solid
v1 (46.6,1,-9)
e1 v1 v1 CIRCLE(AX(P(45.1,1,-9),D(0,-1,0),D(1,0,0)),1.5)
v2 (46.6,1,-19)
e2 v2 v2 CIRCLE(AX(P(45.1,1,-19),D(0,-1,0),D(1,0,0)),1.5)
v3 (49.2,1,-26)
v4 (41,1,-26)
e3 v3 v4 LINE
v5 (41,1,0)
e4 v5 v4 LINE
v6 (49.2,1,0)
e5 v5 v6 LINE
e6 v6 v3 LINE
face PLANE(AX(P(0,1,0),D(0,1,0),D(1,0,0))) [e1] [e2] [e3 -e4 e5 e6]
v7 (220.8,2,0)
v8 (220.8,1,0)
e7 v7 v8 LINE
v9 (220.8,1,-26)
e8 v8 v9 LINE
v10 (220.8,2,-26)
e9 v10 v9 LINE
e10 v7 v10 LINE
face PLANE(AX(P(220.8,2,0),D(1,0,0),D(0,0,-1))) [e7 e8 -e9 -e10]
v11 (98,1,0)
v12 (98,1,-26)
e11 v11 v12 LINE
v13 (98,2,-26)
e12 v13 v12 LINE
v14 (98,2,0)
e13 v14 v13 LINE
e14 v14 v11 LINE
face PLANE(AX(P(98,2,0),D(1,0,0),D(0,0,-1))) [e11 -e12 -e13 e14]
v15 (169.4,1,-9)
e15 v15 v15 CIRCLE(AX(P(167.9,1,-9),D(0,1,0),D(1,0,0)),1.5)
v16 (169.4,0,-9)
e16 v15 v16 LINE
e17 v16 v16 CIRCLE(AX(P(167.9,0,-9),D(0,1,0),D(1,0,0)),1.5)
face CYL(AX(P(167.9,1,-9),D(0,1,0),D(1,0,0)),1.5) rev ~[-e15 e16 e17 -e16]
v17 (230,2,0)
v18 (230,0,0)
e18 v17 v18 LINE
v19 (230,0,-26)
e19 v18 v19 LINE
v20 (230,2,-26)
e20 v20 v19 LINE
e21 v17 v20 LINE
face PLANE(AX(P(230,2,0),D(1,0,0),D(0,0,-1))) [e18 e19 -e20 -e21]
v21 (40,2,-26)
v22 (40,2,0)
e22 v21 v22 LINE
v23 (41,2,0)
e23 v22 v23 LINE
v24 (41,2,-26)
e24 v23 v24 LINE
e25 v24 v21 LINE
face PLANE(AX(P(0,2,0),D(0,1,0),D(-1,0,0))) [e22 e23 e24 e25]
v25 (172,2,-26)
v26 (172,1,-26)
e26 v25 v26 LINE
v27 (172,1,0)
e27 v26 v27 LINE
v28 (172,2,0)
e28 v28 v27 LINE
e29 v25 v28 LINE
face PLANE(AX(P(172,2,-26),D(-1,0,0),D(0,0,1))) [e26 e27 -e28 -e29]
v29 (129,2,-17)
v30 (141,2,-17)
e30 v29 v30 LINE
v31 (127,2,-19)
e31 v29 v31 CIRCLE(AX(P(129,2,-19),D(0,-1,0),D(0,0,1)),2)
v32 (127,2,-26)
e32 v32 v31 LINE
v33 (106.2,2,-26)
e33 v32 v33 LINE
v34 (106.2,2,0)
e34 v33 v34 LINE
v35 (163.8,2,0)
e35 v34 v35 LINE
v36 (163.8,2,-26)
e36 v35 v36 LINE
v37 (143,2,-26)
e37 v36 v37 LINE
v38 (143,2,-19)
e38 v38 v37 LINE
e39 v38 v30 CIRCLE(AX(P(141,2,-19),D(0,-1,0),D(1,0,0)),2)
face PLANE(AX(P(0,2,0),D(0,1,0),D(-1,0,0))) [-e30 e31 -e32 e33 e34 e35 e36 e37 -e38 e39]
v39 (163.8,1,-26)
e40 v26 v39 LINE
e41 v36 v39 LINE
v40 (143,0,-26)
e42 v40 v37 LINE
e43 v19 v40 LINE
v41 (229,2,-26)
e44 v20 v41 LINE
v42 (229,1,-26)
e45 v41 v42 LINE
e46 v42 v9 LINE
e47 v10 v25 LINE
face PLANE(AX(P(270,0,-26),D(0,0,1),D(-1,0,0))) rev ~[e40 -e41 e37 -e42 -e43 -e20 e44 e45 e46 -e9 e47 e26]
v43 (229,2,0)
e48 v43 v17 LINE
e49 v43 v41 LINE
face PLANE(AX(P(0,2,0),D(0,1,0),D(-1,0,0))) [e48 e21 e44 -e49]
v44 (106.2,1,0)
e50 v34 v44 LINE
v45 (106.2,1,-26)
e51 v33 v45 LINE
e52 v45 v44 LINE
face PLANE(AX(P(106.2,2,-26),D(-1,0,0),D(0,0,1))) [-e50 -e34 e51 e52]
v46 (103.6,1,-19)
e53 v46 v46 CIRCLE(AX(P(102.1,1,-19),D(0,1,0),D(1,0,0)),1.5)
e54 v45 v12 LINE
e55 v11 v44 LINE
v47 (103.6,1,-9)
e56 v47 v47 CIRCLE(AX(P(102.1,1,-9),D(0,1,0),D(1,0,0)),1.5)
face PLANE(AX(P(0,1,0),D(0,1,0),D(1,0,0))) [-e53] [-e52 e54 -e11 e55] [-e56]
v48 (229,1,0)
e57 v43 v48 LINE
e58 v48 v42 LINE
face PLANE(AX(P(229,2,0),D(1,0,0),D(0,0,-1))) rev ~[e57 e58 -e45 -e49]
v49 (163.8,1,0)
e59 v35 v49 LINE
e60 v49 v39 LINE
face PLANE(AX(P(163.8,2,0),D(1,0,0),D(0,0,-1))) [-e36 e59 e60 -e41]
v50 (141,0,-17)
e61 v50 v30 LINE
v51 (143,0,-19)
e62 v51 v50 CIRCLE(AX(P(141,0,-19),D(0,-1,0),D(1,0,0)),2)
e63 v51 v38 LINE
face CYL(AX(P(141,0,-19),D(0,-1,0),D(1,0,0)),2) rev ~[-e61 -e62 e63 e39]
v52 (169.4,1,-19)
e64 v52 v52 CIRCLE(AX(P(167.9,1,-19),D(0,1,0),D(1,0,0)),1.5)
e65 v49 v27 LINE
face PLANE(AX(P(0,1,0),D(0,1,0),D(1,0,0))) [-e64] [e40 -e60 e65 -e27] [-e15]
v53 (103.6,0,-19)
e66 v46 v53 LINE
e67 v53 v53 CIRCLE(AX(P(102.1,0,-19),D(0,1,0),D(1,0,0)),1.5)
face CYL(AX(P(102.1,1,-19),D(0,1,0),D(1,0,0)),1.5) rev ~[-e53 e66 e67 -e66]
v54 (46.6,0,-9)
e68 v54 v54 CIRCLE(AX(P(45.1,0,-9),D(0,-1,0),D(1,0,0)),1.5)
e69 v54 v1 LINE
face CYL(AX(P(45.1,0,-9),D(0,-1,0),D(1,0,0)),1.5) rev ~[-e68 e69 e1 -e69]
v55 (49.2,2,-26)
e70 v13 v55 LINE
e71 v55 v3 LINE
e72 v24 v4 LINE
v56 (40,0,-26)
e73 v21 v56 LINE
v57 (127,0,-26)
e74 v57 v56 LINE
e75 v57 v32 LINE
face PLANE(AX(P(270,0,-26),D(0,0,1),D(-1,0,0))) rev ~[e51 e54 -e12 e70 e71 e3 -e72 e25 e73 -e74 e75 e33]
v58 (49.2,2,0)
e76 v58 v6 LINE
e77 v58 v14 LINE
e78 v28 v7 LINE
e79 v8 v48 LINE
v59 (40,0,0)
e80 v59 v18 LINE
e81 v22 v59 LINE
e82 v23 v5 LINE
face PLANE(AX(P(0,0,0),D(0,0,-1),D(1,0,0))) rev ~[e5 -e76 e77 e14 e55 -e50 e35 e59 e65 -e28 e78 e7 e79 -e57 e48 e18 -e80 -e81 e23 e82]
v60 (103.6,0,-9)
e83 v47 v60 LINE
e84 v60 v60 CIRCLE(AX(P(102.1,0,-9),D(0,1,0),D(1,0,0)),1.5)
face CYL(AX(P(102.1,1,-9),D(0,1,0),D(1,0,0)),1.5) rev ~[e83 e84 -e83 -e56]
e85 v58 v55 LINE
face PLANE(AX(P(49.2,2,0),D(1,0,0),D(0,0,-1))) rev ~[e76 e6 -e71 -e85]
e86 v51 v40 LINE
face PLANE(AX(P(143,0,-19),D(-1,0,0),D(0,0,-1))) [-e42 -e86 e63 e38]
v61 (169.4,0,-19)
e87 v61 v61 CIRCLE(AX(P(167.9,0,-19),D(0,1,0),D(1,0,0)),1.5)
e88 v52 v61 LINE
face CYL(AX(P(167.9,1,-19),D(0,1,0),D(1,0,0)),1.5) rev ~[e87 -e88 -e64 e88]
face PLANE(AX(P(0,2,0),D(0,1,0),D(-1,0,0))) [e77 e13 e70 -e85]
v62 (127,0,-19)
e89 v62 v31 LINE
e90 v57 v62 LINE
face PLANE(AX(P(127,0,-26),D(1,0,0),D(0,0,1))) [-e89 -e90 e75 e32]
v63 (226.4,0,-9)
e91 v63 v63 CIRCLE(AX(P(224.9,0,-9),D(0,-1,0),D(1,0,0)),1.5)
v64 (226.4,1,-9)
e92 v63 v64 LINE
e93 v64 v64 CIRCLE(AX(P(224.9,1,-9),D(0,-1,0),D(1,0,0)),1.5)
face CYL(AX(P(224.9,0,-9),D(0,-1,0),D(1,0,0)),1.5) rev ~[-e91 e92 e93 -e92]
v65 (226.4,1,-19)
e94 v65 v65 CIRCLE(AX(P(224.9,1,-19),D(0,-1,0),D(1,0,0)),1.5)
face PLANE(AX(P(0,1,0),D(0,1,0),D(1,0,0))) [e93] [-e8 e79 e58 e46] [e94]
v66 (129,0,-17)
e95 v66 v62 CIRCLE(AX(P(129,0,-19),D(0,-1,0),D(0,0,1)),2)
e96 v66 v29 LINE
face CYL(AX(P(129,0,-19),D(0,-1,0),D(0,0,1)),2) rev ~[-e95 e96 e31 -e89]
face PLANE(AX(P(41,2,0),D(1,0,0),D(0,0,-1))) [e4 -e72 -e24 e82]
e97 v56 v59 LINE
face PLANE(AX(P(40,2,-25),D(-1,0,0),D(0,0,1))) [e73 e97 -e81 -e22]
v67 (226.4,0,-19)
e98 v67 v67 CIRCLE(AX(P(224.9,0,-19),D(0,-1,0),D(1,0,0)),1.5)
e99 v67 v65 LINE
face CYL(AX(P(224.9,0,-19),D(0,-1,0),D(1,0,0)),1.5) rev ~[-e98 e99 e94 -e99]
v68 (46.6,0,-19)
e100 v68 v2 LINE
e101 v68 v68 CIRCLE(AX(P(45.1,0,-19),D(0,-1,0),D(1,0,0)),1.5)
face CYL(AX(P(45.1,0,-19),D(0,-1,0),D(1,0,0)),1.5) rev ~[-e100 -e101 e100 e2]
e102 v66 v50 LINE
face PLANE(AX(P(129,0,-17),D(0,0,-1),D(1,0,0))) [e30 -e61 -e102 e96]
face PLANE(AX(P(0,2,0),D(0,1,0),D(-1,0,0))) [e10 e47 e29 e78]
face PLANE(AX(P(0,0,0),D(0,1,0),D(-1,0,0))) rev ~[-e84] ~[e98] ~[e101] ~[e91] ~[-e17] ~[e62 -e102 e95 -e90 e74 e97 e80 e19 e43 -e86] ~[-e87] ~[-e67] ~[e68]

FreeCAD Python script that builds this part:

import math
import FreeCAD as App
import Part
import Sketcher
Q = App.Units.Quantity


def add_polygon(sketch, points):
    """Adds a closed chain of lines whose ends are joined by coincident constraints."""
    first, n = sketch.GeometryCount, len(points)
    for a, b in zip(points, points[1:] + points[:1]):
        sketch.addGeometry(Part.LineSegment(App.Vector(*a, 0), App.Vector(*b, 0)), False)
    for i in range(n):
        sketch.addConstraint(Sketcher.Constraint("Coincident", first + i, 2, first + (i + 1) % n, 1))

doc = App.newDocument("Part")
body = doc.addObject("PartDesign::Body", "Body")

# Sketch on XZ plane
sketch1 = doc.addObject("Sketcher::SketchObject", "Sketch")
body.addObject(sketch1)
sketch1.AttachmentSupport = (doc.XZ_Plane, [""])
sketch1.MapMode = "FlatFace"
add_polygon(sketch1, [(0, -26), (0, 0), (270, 0), (270, -26)])  # lines 0-3
sketch1.addConstraint([
    Sketcher.Constraint("Vertical", 0),
    Sketcher.Constraint("Horizontal", 1),
    Sketcher.Constraint("Vertical", 2),
    Sketcher.Constraint("Horizontal", 3),
    Sketcher.Constraint("Coincident", 0, 2, -1, 1),
    Sketcher.Constraint("DistanceX", 1, 1, 1, 2, Q("270 mm")),
    Sketcher.Constraint("DistanceY", 0, 1, 0, 2, Q("26 mm")),
])
pad1 = doc.addObject("PartDesign::Pad", "Pad")
body.addObject(pad1)
pad1.Profile = sketch1
pad1.Length = 2
pad1.Reversed = True

# Sketch on XZ plane
sketch2 = doc.addObject("Sketcher::SketchObject", "Sketch001")
body.addObject(sketch2)
sketch2.AttachmentSupport = (doc.XZ_Plane, [""])
sketch2.MapMode = "FlatFace"
sketch2.AttachmentOffset = App.Placement(App.Vector(0, 0, -2), App.Rotation())
add_polygon(sketch2, [(1, -26), (1, 0), (9.2, 0), (9.2, -26)])  # lines 0-3
add_polygon(sketch2, [(41, -26), (41, 0), (49.2, 0), (49.2, -26)])  # lines 4-7
add_polygon(sketch2, [(220.8, -26), (220.8, 0), (229, 0), (229, -26)])  # lines 8-11
add_polygon(sketch2, [(260.8, -26), (260.8, 0), (269, 0), (269, -26)])  # lines 12-15
sketch2.addConstraint([
    Sketcher.Constraint("Vertical", 0),
    Sketcher.Constraint("Horizontal", 1),
    Sketcher.Constraint("Vertical", 2),
    Sketcher.Constraint("Horizontal", 3),
    Sketcher.Constraint("Vertical", 4),
    Sketcher.Constraint("Horizontal", 5),
    Sketcher.Constraint("Vertical", 6),
    Sketcher.Constraint("Horizontal", 7),
    Sketcher.Constraint("Vertical", 8),
    Sketcher.Constraint("Horizontal", 9),
    Sketcher.Constraint("Vertical", 10),
    Sketcher.Constraint("Horizontal", 11),
    Sketcher.Constraint("Vertical", 12),
    Sketcher.Constraint("Horizontal", 13),
    Sketcher.Constraint("Vertical", 14),
    Sketcher.Constraint("Horizontal", 15),
    Sketcher.Constraint("PointOnObject", 0, 2, -1),
    Sketcher.Constraint("PointOnObject", 4, 2, -1),
    Sketcher.Constraint("PointOnObject", 8, 2, -1),
    Sketcher.Constraint("PointOnObject", 12, 2, -1),
    Sketcher.Constraint("Horizontal", 3, 2, 6, 2),
    Sketcher.Constraint("Horizontal", 7, 2, 10, 2),
    Sketcher.Constraint("Horizontal", 11, 2, 14, 2),
    Sketcher.Constraint("Equal", 3, 5),
    Sketcher.Constraint("Equal", 7, 9),
    Sketcher.Constraint("Equal", 11, 13),
    Sketcher.Constraint("DistanceX", 1, 1, 1, 2, Q("8.2 mm")),
    Sketcher.Constraint("DistanceX", -1, 1, 0, 2, Q("1 mm")),
    Sketcher.Constraint("DistanceX", -1, 1, 4, 2, Q("41 mm")),
    Sketcher.Constraint("DistanceX", 8, 2, 12, 2, Q("40 mm")),
    Sketcher.Constraint("DistanceY", 0, 1, 0, 2, Q("26 mm")),
    Sketcher.Constraint("DistanceX", -1, 1, 9, 2, Q("229 mm")),
])
pocket1 = doc.addObject("PartDesign::Pocket", "Pocket")
body.addObject(pocket1)
pocket1.Profile = sketch2
pocket1.Length = 1
pocket1.Reversed = True

# Sketch on XZ plane
sketch3 = doc.addObject("Sketcher::SketchObject", "Sketch002")
body.addObject(sketch3)
sketch3.AttachmentSupport = (doc.XZ_Plane, [""])
sketch3.MapMode = "FlatFace"
sketch3.addGeometry([
    Part.Circle(App.Vector(5.1, -9, 0), App.Vector(0, 0, 1), 1.5),  # 0
    Part.Circle(App.Vector(5.1, -19, 0), App.Vector(0, 0, 1), 1.5),  # 1
    Part.Circle(App.Vector(45.1, -9, 0), App.Vector(0, 0, 1), 1.5),  # 2
    Part.Circle(App.Vector(45.1, -19, 0), App.Vector(0, 0, 1), 1.5),  # 3
    Part.Circle(App.Vector(224.9, -9, 0), App.Vector(0, 0, 1), 1.5),  # 4
    Part.Circle(App.Vector(224.9, -19, 0), App.Vector(0, 0, 1), 1.5),  # 5
    Part.Circle(App.Vector(264.9, -19, 0), App.Vector(0, 0, 1), 1.5),  # 6
    Part.Circle(App.Vector(264.9, -9, 0), App.Vector(0, 0, 1), 1.5),  # 7
], False)
sketch3.addConstraint([
    Sketcher.Constraint("Equal", 0, 1),
    Sketcher.Constraint("Equal", 1, 2),
    Sketcher.Constraint("Equal", 2, 3),
    Sketcher.Constraint("Equal", 3, 4),
    Sketcher.Constraint("Equal", 4, 5),
    Sketcher.Constraint("Equal", 5, 6),
    Sketcher.Constraint("Equal", 6, 7),
    Sketcher.Constraint("Horizontal", 0, 3, 2, 3),
    Sketcher.Constraint("Horizontal", 1, 3, 3, 3),
    Sketcher.Constraint("Horizontal", 2, 3, 4, 3),
    Sketcher.Constraint("Horizontal", 3, 3, 5, 3),
    Sketcher.Constraint("Horizontal", 5, 3, 6, 3),
    Sketcher.Constraint("Horizontal", 4, 3, 7, 3),
    Sketcher.Constraint("Vertical", 0, 3, 1, 3),
    Sketcher.Constraint("Vertical", 2, 3, 3, 3),
    Sketcher.Constraint("Vertical", 4, 3, 5, 3),
    Sketcher.Constraint("Vertical", 6, 3, 7, 3),
    Sketcher.Constraint("Diameter", 0, Q("3 mm")),
    Sketcher.Constraint("DistanceY", 0, 3, -1, 1, Q("9 mm")),
    Sketcher.Constraint("DistanceY", 1, 3, -1, 1, Q("19 mm")),
    Sketcher.Constraint("DistanceX", 0, 3, 2, 3, Q("40 mm")),
    Sketcher.Constraint("DistanceX", 5, 3, 6, 3, Q("40 mm")),
    Sketcher.Constraint("DistanceX", -1, 1, 0, 3, Q("5.1 mm")),
    Sketcher.Constraint("DistanceX", -1, 1, 4, 3, Q("224.9 mm")),
])
pocket2 = doc.addObject("PartDesign::Pocket", "Pocket001")
body.addObject(pocket2)
pocket2.Profile = sketch3
pocket2.Length = 10

# Sketch on XZ plane
sketch4 = doc.addObject("Sketcher::SketchObject", "Sketch003")
body.addObject(sketch4)
sketch4.AttachmentSupport = (doc.XZ_Plane, [""])
sketch4.MapMode = "FlatFace"
sketch4.addGeometry([
    Part.LineSegment(App.Vector(127, -19, 0), App.Vector(127, -26, 0)),  # 0
    Part.LineSegment(App.Vector(127, -26, 0), App.Vector(143, -26, 0)),  # 1
    Part.LineSegment(App.Vector(143, -26, 0), App.Vector(143, -19, 0)),  # 2
    Part.ArcOfCircle(Part.Circle(App.Vector(141, -19, 0), App.Vector(0, 0, 1), 2), math.radians(0), math.radians(90)),  # 3
    Part.LineSegment(App.Vector(141, -17, 0), App.Vector(129, -17, 0)),  # 4
    Part.ArcOfCircle(Part.Circle(App.Vector(129, -19, 0), App.Vector(0, 0, 1), 2), math.radians(90), math.radians(180)),  # 5
], False)
sketch4.addConstraint([
    Sketcher.Constraint("Coincident", 0, 2, 1, 1),
    Sketcher.Constraint("Coincident", 1, 2, 2, 1),
    Sketcher.Constraint("Tangent", 2, 2, 3, 1),
    Sketcher.Constraint("Tangent", 3, 2, 4, 1),
    Sketcher.Constraint("Tangent", 4, 2, 5, 1),
    Sketcher.Constraint("Tangent", 5, 2, 0, 1),
    Sketcher.Constraint("Vertical", 0),
    Sketcher.Constraint("Horizontal", 1),
    Sketcher.Constraint("Vertical", 2),
    Sketcher.Constraint("Horizontal", 4),
    Sketcher.Constraint("Equal", 3, 5),
    Sketcher.Constraint("Radius", 3, Q("2 mm")),
    Sketcher.Constraint("DistanceX", 1, 1, 1, 2, Q("16 mm")),
    Sketcher.Constraint("DistanceX", -1, 1, 0, 2, Q("127 mm")),
    Sketcher.Constraint("DistanceY", 1, 2, 3, 2, Q("9 mm")),
    Sketcher.Constraint("DistanceY", 3, 3, -1, 1, Q("19 mm")),
])
pocket3 = doc.addObject("PartDesign::Pocket", "Pocket002")
body.addObject(pocket3)
pocket3.Profile = sketch4
pocket3.Length = 2

# Sketch on XZ plane
sketch5 = doc.addObject("Sketcher::SketchObject", "Sketch004")
body.addObject(sketch5)
sketch5.AttachmentSupport = (doc.XZ_Plane, [""])
sketch5.MapMode = "FlatFace"
sketch5.AttachmentOffset = App.Placement(App.Vector(0, 0, -2), App.Rotation())
add_polygon(sketch5, [(106.2, 0), (106.2, -26), (98, -26), (98, 0)])  # lines 0-3
add_polygon(sketch5, [(163.8, -26), (163.8, 0), (172, 0), (172, -26)])  # lines 4-7
sketch5.addConstraint([
    Sketcher.Constraint("Vertical", 0),
    Sketcher.Constraint("Horizontal", 1),
    Sketcher.Constraint("Vertical", 2),
    Sketcher.Constraint("Horizontal", 3),
    Sketcher.Constraint("Vertical", 4),
    Sketcher.Constraint("Horizontal", 5),
    Sketcher.Constraint("Vertical", 6),
    Sketcher.Constraint("Horizontal", 7),
    Sketcher.Constraint("PointOnObject", 2, 2, -1),
    Sketcher.Constraint("PointOnObject", 4, 2, -1),
    Sketcher.Constraint("Horizontal", 1, 2, 6, 2),
    Sketcher.Constraint("Equal", 3, 5),
    Sketcher.Constraint("DistanceX", 1, 2, 1, 1, Q("8.2 mm")),
    Sketcher.Constraint("DistanceX", -1, 1, 1, 2, Q("98 mm")),
    Sketcher.Constraint("DistanceY", 0, 2, 0, 1, Q("26 mm")),
    Sketcher.Constraint("DistanceX", -1, 1, 5, 2, Q("172 mm")),
])
pocket4 = doc.addObject("PartDesign::Pocket", "Pocket003")
body.addObject(pocket4)
pocket4.Profile = sketch5
pocket4.Length = 1
pocket4.Reversed = True

# Sketch on XZ plane
sketch6 = doc.addObject("Sketcher::SketchObject", "Sketch005")
body.addObject(sketch6)
sketch6.AttachmentSupport = (doc.XZ_Plane, [""])
sketch6.MapMode = "FlatFace"
sketch6.AttachmentOffset = App.Placement(App.Vector(0, 0, -1), App.Rotation())
sketch6.addGeometry([
    Part.Circle(App.Vector(167.9, -19, 0), App.Vector(0, 0, 1), 1.5),
    Part.Circle(App.Vector(167.9, -9, 0), App.Vector(0, 0, 1), 1.5),
    Part.Circle(App.Vector(102.1, -9, 0), App.Vector(0, 0, 1), 1.5),
    Part.Circle(App.Vector(102.1, -19, 0), App.Vector(0, 0, 1), 1.5),
], False)
sketch6.addConstraint([
    Sketcher.Constraint("Equal", 0, 1),
    Sketcher.Constraint("Equal", 1, 2),
    Sketcher.Constraint("Equal", 2, 3),
    Sketcher.Constraint("Horizontal", 1, 3, 2, 3),
    Sketcher.Constraint("Horizontal", 0, 3, 3, 3),
    Sketcher.Constraint("Vertical", 0, 3, 1, 3),
    Sketcher.Constraint("Vertical", 2, 3, 3, 3),
    Sketcher.Constraint("Diameter", 0, Q("3 mm")),
    Sketcher.Constraint("DistanceY", 0, 3, 1, 3, Q("10 mm")),
    Sketcher.Constraint("DistanceY", 0, 3, -1, 1, Q("19 mm")),
    Sketcher.Constraint("DistanceX", -1, 1, 0, 3, Q("167.9 mm")),
    Sketcher.Constraint("DistanceX", -1, 1, 2, 3, Q("102.1 mm")),
])
pocket5 = doc.addObject("PartDesign::Pocket", "Pocket004")
body.addObject(pocket5)
pocket5.Profile = sketch6
pocket5.Length = 1
pocket5.Reversed = True

# Sketch on XZ plane
sketch7 = doc.addObject("Sketcher::SketchObject", "Sketch006")
body.addObject(sketch7)
sketch7.AttachmentSupport = (doc.XZ_Plane, [""])
sketch7.MapMode = "FlatFace"
sketch7.AttachmentOffset = App.Placement(App.Vector(0, 0, -2), App.Rotation())
add_polygon(sketch7, [(230, -26), (230, 0), (270, 0), (270, -26)])  # lines 0-3
add_polygon(sketch7, [(40, 0), (40, -26), (0, -26), (0, 0)])  # lines 4-7
sketch7.addConstraint([
    Sketcher.Constraint("Vertical", 0),
    Sketcher.Constraint("Horizontal", 1),
    Sketcher.Constraint("Vertical", 2),
    Sketcher.Constraint("Horizontal", 3),
    Sketcher.Constraint("Vertical", 4),
    Sketcher.Constraint("Horizontal", 5),
    Sketcher.Constraint("Vertical", 6),
    Sketcher.Constraint("Horizontal", 7),
    Sketcher.Constraint("Coincident", 6, 2, -1, 1),
    Sketcher.Constraint("PointOnObject", 0, 2, -1),
    Sketcher.Constraint("Horizontal", 3, 2, 4, 2),
    Sketcher.Constraint("Equal", 3, 5),
    Sketcher.Constraint("DistanceX", 1, 1, 1, 2, Q("40 mm")),
    Sketcher.Constraint("DistanceY", 0, 1, 0, 2, Q("26 mm")),
    Sketcher.Constraint("DistanceX", -1, 1, 0, 2, Q("230 mm")),
])
pocket6 = doc.addObject("PartDesign::Pocket", "Pocket005")
body.addObject(pocket6)
pocket6.Profile = sketch7
pocket6.Length = 10
pocket6.Reversed = True

doc.recompute()
